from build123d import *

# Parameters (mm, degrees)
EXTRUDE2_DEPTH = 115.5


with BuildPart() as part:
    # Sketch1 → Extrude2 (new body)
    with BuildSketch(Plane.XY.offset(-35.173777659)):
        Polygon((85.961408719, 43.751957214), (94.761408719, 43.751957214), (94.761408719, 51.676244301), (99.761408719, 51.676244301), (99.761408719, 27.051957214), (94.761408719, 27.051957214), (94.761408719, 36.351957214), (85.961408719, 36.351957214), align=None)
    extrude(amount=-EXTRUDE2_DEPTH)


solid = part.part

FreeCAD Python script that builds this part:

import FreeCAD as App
import Part
import Sketcher
from FreeCAD import Vector


def add_polygon(sketch, points):
    """Adds a closed chain of lines whose ends are joined by coincident constraints."""
    first, n = sketch.GeometryCount, len(points)
    for a, b in zip(points, points[1:] + points[:1]):
        sketch.addGeometry(Part.LineSegment(App.Vector(*a, 0), App.Vector(*b, 0)), False)
    for i in range(n):
        sketch.addConstraint(Sketcher.Constraint("Coincident", first + i, 2, first + (i + 1) % n, 1))

doc = App.newDocument("Part")
body = doc.addObject("PartDesign::Body", "Body")

sketch1 = body.newObject("Sketcher::SketchObject", "Sketch")
sketch1.AttachmentSupport = (doc.getObject("XY_Plane"), [""])
sketch1.MapMode = "FlatFace"
sketch1.AttachmentOffset = App.Placement(Vector(0, 0, -35.173778), App.Rotation())
add_polygon(sketch1, [(95, 44), (86, 44), (86, 36), (95, 36), (95, 27), (100, 27), (100, 52), (95, 52)])
sketch1.addConstraint([
    Sketcher.Constraint("Horizontal", 0),
    Sketcher.Constraint("Vertical", 1),
    Sketcher.Constraint("Horizontal", 2),
    Sketcher.Constraint("Vertical", 3),
    Sketcher.Constraint("Horizontal", 4),
    Sketcher.Constraint("Vertical", 5),
    Sketcher.Constraint("Horizontal", 6),
    Sketcher.Constraint("Vertical", 7),
    Sketcher.Constraint("Vertical", 3, 2, 6, 2),
    Sketcher.Constraint("DistanceX", 4, 1, 4, 2, 5.0),
    Sketcher.Constraint("DistanceX", 0, 2, 0, 1, 8.8),
    Sketcher.Constraint("DistanceY", 1, 2, 1, 1, 7.4),
    Sketcher.Constraint("DistanceY", 3, 2, 3, 1, 9.3),
    Sketcher.Constraint("DistanceY", 5, 1, 5, 2, 24.624287),
    Sketcher.Constraint("DistanceX", -1, 1, 0, 2, 85.961409),
    Sketcher.Constraint("DistanceY", -1, 1, 0, 2, 43.751957),
])
pad1 = body.newObject("PartDesign::Pad", "Pad")
pad1.Profile = sketch1
pad1.Length = 115.5
pad1.Reversed = True

doc.recompute()
